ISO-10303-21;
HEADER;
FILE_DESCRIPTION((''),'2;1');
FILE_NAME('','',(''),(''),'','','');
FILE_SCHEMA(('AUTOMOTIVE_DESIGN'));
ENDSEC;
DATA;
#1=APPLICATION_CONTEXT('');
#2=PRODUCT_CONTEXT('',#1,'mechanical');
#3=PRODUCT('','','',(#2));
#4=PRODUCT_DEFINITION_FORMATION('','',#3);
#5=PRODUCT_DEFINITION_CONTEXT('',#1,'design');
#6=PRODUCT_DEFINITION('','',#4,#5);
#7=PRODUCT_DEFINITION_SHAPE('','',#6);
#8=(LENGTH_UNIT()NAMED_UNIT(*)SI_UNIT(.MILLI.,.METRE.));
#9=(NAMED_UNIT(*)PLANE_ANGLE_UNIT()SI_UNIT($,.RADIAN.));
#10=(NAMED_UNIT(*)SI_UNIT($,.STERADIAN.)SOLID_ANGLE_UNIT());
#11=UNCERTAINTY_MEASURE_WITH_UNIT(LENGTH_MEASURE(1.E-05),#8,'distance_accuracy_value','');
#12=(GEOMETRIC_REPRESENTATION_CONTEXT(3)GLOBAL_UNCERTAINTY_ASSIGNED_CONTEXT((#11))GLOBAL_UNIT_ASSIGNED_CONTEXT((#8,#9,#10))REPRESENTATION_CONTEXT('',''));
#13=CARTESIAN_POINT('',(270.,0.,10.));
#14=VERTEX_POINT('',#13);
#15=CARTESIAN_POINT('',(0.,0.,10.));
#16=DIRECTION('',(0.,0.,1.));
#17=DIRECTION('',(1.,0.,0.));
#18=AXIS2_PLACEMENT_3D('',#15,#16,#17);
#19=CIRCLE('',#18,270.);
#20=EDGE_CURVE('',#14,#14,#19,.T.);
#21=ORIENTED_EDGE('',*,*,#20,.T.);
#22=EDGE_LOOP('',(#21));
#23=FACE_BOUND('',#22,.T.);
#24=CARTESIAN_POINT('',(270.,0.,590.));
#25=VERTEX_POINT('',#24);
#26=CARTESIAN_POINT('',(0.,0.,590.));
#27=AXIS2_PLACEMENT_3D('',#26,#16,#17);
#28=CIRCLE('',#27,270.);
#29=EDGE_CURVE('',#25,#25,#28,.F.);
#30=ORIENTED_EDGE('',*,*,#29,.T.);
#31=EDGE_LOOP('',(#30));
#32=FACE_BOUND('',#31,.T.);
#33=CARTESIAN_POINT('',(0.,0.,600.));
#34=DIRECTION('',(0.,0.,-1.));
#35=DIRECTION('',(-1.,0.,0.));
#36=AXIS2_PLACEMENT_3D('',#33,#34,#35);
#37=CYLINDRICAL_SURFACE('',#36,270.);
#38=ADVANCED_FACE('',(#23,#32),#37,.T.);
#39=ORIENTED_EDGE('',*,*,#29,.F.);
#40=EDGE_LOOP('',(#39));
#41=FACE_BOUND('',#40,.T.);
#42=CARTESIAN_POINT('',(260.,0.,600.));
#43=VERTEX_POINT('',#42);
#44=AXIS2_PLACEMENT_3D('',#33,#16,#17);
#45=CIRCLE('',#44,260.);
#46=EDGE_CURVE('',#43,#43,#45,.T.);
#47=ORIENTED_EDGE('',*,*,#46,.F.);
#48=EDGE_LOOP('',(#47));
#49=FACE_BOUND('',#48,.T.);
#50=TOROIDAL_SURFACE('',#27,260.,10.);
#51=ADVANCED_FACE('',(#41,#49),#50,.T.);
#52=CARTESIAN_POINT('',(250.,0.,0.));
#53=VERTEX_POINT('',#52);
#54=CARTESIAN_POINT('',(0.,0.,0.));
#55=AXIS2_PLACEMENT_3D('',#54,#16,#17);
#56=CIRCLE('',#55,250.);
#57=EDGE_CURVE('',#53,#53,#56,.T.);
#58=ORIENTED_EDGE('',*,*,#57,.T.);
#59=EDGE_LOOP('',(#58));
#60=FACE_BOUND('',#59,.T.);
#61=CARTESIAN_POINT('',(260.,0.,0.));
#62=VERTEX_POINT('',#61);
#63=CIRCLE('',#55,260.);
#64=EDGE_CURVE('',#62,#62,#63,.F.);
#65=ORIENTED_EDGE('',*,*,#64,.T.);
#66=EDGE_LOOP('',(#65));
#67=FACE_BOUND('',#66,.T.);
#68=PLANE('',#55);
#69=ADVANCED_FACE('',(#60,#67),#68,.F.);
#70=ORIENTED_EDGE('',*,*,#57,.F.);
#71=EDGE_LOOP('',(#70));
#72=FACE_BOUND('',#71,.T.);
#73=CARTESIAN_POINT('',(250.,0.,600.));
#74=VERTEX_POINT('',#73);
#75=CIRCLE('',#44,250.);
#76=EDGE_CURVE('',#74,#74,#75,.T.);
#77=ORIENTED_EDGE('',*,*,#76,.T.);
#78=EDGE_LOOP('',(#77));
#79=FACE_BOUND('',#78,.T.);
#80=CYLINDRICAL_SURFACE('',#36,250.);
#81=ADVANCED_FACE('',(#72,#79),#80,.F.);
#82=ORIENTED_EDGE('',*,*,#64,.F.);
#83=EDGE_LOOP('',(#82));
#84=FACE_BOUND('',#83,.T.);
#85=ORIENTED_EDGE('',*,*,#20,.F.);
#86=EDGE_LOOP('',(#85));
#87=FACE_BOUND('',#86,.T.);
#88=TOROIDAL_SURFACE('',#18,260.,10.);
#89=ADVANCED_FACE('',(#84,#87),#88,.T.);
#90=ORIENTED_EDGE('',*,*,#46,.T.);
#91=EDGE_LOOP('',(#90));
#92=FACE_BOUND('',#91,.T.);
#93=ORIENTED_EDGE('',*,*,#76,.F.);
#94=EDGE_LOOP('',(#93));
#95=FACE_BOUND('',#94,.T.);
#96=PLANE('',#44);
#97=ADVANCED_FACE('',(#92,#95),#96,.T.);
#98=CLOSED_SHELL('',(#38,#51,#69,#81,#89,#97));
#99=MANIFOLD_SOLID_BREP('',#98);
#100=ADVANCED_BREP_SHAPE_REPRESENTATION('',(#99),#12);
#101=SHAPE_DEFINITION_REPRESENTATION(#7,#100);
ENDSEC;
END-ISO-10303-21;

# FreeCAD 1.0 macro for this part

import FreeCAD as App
import Part
import Sketcher

V = App.Vector
Q = App.Units.Quantity


def edges_at(feature, points):
    """Names of the edges that pass closest to the given points."""
    edges = feature.Shape.Edges
    near = lambda p: min(range(len(edges)), key=lambda i: edges[i].distToShape(Part.Vertex(*p))[0])
    return sorted({f"Edge{near(p) + 1}" for p in points})

doc = App.newDocument("Part")
params = doc.addObject("Spreadsheet::Sheet", "Params")
for row, (alias, value) in enumerate([
    ("sketch1_diameter", "540 mm"),
    ("sketch1_diameter2", "500 mm"),
    ("pad1_length", "600 mm"),
    ("fillet_radius", "10 mm"),
], start=1):
    params.set(f"A{row}", alias)
    params.set(f"B{row}", "=" + value)
    params.setAlias(f"B{row}", alias)

body = doc.addObject("PartDesign::Body", "Body")

sketch1 = doc.addObject("Sketcher::SketchObject", "Sketch")
body.addObject(sketch1)
sketch1.AttachmentSupport = (doc.XY_Plane, [""])
sketch1.MapMode = "FlatFace"
sketch1.addGeometry([
    Part.Circle(V(0, 0, 0), V(0, 0, 1), 270),
    Part.Circle(V(0, 0, 0), V(0, 0, 1), 250),
], False)
sketch1.addConstraint([
    Sketcher.Constraint("Coincident", 0, 3, -1, 1),
    Sketcher.Constraint("Coincident", 1, 3, -1, 1),
    Sketcher.Constraint("Diameter", 0, Q("540 mm")),
    Sketcher.Constraint("Diameter", 1, Q("500 mm")),
])
sketch1.setExpression("Constraints[2]", "Params.sketch1_diameter")
sketch1.setExpression("Constraints[3]", "Params.sketch1_diameter2")
pad1 = doc.addObject("PartDesign::Pad", "Pad")
body.addObject(pad1)
pad1.Profile = sketch1
pad1.setExpression("Length", "Params.pad1_length")
doc.recompute()

fillet = doc.addObject("PartDesign::Fillet", "Fillet")
body.addObject(fillet)
fillet.Base = (pad1, edges_at(pad1, [(-270, 0, 0), (-270, 0, 600)]))
fillet.setExpression("Radius", "Params.fillet_radius")

doc.recompute()
